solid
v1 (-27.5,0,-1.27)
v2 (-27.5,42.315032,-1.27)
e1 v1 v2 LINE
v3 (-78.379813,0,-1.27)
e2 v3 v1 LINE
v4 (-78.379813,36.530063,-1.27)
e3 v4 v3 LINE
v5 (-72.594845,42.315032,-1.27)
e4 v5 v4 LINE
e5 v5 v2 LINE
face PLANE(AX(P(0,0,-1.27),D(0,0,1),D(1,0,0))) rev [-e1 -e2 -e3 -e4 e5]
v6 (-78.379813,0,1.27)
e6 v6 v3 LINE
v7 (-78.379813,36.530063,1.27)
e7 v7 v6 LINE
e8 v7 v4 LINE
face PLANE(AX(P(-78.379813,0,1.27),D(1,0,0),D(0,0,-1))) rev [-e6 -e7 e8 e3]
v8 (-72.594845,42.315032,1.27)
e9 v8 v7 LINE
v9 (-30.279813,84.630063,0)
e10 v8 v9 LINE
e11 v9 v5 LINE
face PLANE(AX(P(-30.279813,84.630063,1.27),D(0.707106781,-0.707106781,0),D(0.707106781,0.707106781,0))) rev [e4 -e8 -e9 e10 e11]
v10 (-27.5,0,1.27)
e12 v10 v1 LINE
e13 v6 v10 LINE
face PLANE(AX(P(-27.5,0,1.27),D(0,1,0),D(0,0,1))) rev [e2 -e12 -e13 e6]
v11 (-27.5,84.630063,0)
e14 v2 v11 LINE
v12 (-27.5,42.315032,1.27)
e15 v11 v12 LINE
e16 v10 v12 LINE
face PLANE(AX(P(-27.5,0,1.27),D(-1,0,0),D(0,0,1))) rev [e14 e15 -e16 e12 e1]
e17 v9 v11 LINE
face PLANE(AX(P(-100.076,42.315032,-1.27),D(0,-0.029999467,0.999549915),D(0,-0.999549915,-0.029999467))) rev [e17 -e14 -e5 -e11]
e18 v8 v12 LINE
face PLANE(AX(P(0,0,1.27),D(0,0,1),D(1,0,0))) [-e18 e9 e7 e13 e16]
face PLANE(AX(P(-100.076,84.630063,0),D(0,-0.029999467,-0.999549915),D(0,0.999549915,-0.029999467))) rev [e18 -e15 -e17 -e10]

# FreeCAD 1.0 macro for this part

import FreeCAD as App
import Part
import Sketcher

V = App.Vector
Q = App.Units.Quantity

doc = App.newDocument("Part")
body = doc.addObject("PartDesign::Body", "Body")

sketch1 = body.newObject("Sketcher::SketchObject", "Sketch")
sketch1.AttachmentSupport = (doc.getObject("XY_Plane"), [""])
sketch1.MapMode = "FlatFace"
sketch1.addGeometry([
    Part.LineSegment(V(-30.3, 84.6, 0), V(-78.4, 36.5, 0)),
    Part.LineSegment(V(-78.4, 36.5, 0), V(-78.4, 0, 0)),
    Part.LineSegment(V(-78.4, 0, 0), V(-27.5, 0, 0)),
    Part.LineSegment(V(-27.5, 0, 0), V(-27.5, 84.6, 0)),
    Part.LineSegment(V(-27.5, 84.6, 0), V(-30.3, 84.6, 0)),
], False)
sketch1.addConstraint([
    Sketcher.Constraint("Coincident", 0, 2, 1, 1),
    Sketcher.Constraint("Coincident", 1, 2, 2, 1),
    Sketcher.Constraint("Coincident", 2, 2, 3, 1),
    Sketcher.Constraint("Coincident", 3, 2, 4, 1),
    Sketcher.Constraint("Coincident", 4, 2, 0, 1),
    Sketcher.Constraint("Vertical", 1),
    Sketcher.Constraint("Horizontal", 2),
    Sketcher.Constraint("Vertical", 3),
    Sketcher.Constraint("Horizontal", 4),
    Sketcher.Constraint("PointOnObject", 1, 2, -1),
    Sketcher.Constraint("Angle", 0, Q("-135 deg")),
    Sketcher.Constraint("DistanceX", 2, 2, -1, 1, Q("27.5 mm")),
    Sketcher.Constraint("DistanceY", 0, 2, 3, 2, Q("48.1 mm")),
    Sketcher.Constraint("DistanceX", 2, 1, 2, 2, Q("50.879813 mm")),
    Sketcher.Constraint("DistanceY", 1, 2, 1, 1, Q("36.530063 mm")),
])
pad1 = body.newObject("PartDesign::Pad", "Pad")
pad1.Profile = sketch1
pad1.Length = Q("0.1 in")
pad1.Midplane = True

sketch2 = body.newObject("Sketcher::SketchObject", "Sketch001")
sketch2.AttachmentSupport = (doc.getObject("YZ_Plane"), [""])
sketch2.MapMode = "FlatFace"
sketch2.addGeometry([
    Part.LineSegment(V(42, 1, 0), V(85, 0, 0)),
    Part.LineSegment(V(85, 0, 0), V(42, -1, 0)),
    Part.LineSegment(V(42, -1, 0), V(42, -21, 0)),
    Part.LineSegment(V(42, -21, 0), V(87, -21, 0)),
    Part.LineSegment(V(87, -21, 0), V(87, 14, 0)),
    Part.LineSegment(V(87, 14, 0), V(42, 14, 0)),
    Part.LineSegment(V(42, 14, 0), V(42, 1, 0)),
], False)
sketch2.addConstraint([
    Sketcher.Constraint("Coincident", 0, 2, 1, 1),
    Sketcher.Constraint("Coincident", 1, 2, 2, 1),
    Sketcher.Constraint("Coincident", 2, 2, 3, 1),
    Sketcher.Constraint("Coincident", 3, 2, 4, 1),
    Sketcher.Constraint("Coincident", 4, 2, 5, 1),
    Sketcher.Constraint("Coincident", 5, 2, 6, 1),
    Sketcher.Constraint("Coincident", 6, 2, 0, 1),
    Sketcher.Constraint("Vertical", 2),
    Sketcher.Constraint("Horizontal", 3),
    Sketcher.Constraint("Vertical", 4),
    Sketcher.Constraint("Horizontal", 5),
    Sketcher.Constraint("Vertical", 6),
    Sketcher.Constraint("Symmetric", 1, 2, 6, 2, -1),
    Sketcher.Constraint("PointOnObject", 0, 2, -1),
    Sketcher.Constraint("DistanceY", 1, 2, 6, 2, Q("0.1 in")),
    Sketcher.Constraint("DistanceY", 6, 2, 6, 1, Q("12.440909 mm")),
    Sketcher.Constraint("DistanceX", 3, 1, 3, 2, Q("44.517073 mm")),
    Sketcher.Constraint("DistanceY", 2, 2, 2, 1, Q("20.035265 mm")),
    Sketcher.Constraint("DistanceX", -1, 1, 1, 2, Q("42.315032 mm")),
    Sketcher.Constraint("DistanceX", 1, 2, 0, 2, Q("42.315032 mm")),
])
pocket1 = body.newObject("PartDesign::Pocket", "Pocket")
pocket1.Profile = sketch2
pocket1.Length = Q("3.94 in")

doc.recompute()
